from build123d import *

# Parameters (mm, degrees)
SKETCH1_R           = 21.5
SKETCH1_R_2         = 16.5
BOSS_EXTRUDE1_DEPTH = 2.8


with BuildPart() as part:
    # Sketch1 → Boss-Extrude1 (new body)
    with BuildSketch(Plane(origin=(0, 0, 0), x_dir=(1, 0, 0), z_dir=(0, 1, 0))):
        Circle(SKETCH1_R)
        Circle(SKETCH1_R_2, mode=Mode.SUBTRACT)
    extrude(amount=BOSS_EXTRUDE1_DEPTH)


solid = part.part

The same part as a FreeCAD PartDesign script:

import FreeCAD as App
import Part
import Sketcher

V = App.Vector
Q = App.Units.Quantity

doc = App.newDocument("Part")
body = doc.addObject("PartDesign::Body", "Body")

sketch1 = body.newObject("Sketcher::SketchObject", "Sketch")
sketch1.AttachmentSupport = (doc.getObject("XZ_Plane"), [""])
sketch1.MapMode = "FlatFace"
sketch1.addGeometry([
    Part.Circle(V(0, 0, 0), V(0, 0, 1), 21.5),
    Part.Circle(V(0, 0, 0), V(0, 0, 1), 16.5),
], False)
sketch1.addConstraint([
    Sketcher.Constraint("Coincident", 0, 3, -1, 1),
    Sketcher.Constraint("Coincident", 1, 3, -1, 1),
    Sketcher.Constraint("Diameter", 0, Q("43 mm")),
    Sketcher.Constraint("Diameter", 1, Q("33 mm")),
])
pad1 = body.newObject("PartDesign::Pad", "Pad")
pad1.Profile = sketch1
pad1.Length = 2.8
pad1.Reversed = True

doc.recompute()
